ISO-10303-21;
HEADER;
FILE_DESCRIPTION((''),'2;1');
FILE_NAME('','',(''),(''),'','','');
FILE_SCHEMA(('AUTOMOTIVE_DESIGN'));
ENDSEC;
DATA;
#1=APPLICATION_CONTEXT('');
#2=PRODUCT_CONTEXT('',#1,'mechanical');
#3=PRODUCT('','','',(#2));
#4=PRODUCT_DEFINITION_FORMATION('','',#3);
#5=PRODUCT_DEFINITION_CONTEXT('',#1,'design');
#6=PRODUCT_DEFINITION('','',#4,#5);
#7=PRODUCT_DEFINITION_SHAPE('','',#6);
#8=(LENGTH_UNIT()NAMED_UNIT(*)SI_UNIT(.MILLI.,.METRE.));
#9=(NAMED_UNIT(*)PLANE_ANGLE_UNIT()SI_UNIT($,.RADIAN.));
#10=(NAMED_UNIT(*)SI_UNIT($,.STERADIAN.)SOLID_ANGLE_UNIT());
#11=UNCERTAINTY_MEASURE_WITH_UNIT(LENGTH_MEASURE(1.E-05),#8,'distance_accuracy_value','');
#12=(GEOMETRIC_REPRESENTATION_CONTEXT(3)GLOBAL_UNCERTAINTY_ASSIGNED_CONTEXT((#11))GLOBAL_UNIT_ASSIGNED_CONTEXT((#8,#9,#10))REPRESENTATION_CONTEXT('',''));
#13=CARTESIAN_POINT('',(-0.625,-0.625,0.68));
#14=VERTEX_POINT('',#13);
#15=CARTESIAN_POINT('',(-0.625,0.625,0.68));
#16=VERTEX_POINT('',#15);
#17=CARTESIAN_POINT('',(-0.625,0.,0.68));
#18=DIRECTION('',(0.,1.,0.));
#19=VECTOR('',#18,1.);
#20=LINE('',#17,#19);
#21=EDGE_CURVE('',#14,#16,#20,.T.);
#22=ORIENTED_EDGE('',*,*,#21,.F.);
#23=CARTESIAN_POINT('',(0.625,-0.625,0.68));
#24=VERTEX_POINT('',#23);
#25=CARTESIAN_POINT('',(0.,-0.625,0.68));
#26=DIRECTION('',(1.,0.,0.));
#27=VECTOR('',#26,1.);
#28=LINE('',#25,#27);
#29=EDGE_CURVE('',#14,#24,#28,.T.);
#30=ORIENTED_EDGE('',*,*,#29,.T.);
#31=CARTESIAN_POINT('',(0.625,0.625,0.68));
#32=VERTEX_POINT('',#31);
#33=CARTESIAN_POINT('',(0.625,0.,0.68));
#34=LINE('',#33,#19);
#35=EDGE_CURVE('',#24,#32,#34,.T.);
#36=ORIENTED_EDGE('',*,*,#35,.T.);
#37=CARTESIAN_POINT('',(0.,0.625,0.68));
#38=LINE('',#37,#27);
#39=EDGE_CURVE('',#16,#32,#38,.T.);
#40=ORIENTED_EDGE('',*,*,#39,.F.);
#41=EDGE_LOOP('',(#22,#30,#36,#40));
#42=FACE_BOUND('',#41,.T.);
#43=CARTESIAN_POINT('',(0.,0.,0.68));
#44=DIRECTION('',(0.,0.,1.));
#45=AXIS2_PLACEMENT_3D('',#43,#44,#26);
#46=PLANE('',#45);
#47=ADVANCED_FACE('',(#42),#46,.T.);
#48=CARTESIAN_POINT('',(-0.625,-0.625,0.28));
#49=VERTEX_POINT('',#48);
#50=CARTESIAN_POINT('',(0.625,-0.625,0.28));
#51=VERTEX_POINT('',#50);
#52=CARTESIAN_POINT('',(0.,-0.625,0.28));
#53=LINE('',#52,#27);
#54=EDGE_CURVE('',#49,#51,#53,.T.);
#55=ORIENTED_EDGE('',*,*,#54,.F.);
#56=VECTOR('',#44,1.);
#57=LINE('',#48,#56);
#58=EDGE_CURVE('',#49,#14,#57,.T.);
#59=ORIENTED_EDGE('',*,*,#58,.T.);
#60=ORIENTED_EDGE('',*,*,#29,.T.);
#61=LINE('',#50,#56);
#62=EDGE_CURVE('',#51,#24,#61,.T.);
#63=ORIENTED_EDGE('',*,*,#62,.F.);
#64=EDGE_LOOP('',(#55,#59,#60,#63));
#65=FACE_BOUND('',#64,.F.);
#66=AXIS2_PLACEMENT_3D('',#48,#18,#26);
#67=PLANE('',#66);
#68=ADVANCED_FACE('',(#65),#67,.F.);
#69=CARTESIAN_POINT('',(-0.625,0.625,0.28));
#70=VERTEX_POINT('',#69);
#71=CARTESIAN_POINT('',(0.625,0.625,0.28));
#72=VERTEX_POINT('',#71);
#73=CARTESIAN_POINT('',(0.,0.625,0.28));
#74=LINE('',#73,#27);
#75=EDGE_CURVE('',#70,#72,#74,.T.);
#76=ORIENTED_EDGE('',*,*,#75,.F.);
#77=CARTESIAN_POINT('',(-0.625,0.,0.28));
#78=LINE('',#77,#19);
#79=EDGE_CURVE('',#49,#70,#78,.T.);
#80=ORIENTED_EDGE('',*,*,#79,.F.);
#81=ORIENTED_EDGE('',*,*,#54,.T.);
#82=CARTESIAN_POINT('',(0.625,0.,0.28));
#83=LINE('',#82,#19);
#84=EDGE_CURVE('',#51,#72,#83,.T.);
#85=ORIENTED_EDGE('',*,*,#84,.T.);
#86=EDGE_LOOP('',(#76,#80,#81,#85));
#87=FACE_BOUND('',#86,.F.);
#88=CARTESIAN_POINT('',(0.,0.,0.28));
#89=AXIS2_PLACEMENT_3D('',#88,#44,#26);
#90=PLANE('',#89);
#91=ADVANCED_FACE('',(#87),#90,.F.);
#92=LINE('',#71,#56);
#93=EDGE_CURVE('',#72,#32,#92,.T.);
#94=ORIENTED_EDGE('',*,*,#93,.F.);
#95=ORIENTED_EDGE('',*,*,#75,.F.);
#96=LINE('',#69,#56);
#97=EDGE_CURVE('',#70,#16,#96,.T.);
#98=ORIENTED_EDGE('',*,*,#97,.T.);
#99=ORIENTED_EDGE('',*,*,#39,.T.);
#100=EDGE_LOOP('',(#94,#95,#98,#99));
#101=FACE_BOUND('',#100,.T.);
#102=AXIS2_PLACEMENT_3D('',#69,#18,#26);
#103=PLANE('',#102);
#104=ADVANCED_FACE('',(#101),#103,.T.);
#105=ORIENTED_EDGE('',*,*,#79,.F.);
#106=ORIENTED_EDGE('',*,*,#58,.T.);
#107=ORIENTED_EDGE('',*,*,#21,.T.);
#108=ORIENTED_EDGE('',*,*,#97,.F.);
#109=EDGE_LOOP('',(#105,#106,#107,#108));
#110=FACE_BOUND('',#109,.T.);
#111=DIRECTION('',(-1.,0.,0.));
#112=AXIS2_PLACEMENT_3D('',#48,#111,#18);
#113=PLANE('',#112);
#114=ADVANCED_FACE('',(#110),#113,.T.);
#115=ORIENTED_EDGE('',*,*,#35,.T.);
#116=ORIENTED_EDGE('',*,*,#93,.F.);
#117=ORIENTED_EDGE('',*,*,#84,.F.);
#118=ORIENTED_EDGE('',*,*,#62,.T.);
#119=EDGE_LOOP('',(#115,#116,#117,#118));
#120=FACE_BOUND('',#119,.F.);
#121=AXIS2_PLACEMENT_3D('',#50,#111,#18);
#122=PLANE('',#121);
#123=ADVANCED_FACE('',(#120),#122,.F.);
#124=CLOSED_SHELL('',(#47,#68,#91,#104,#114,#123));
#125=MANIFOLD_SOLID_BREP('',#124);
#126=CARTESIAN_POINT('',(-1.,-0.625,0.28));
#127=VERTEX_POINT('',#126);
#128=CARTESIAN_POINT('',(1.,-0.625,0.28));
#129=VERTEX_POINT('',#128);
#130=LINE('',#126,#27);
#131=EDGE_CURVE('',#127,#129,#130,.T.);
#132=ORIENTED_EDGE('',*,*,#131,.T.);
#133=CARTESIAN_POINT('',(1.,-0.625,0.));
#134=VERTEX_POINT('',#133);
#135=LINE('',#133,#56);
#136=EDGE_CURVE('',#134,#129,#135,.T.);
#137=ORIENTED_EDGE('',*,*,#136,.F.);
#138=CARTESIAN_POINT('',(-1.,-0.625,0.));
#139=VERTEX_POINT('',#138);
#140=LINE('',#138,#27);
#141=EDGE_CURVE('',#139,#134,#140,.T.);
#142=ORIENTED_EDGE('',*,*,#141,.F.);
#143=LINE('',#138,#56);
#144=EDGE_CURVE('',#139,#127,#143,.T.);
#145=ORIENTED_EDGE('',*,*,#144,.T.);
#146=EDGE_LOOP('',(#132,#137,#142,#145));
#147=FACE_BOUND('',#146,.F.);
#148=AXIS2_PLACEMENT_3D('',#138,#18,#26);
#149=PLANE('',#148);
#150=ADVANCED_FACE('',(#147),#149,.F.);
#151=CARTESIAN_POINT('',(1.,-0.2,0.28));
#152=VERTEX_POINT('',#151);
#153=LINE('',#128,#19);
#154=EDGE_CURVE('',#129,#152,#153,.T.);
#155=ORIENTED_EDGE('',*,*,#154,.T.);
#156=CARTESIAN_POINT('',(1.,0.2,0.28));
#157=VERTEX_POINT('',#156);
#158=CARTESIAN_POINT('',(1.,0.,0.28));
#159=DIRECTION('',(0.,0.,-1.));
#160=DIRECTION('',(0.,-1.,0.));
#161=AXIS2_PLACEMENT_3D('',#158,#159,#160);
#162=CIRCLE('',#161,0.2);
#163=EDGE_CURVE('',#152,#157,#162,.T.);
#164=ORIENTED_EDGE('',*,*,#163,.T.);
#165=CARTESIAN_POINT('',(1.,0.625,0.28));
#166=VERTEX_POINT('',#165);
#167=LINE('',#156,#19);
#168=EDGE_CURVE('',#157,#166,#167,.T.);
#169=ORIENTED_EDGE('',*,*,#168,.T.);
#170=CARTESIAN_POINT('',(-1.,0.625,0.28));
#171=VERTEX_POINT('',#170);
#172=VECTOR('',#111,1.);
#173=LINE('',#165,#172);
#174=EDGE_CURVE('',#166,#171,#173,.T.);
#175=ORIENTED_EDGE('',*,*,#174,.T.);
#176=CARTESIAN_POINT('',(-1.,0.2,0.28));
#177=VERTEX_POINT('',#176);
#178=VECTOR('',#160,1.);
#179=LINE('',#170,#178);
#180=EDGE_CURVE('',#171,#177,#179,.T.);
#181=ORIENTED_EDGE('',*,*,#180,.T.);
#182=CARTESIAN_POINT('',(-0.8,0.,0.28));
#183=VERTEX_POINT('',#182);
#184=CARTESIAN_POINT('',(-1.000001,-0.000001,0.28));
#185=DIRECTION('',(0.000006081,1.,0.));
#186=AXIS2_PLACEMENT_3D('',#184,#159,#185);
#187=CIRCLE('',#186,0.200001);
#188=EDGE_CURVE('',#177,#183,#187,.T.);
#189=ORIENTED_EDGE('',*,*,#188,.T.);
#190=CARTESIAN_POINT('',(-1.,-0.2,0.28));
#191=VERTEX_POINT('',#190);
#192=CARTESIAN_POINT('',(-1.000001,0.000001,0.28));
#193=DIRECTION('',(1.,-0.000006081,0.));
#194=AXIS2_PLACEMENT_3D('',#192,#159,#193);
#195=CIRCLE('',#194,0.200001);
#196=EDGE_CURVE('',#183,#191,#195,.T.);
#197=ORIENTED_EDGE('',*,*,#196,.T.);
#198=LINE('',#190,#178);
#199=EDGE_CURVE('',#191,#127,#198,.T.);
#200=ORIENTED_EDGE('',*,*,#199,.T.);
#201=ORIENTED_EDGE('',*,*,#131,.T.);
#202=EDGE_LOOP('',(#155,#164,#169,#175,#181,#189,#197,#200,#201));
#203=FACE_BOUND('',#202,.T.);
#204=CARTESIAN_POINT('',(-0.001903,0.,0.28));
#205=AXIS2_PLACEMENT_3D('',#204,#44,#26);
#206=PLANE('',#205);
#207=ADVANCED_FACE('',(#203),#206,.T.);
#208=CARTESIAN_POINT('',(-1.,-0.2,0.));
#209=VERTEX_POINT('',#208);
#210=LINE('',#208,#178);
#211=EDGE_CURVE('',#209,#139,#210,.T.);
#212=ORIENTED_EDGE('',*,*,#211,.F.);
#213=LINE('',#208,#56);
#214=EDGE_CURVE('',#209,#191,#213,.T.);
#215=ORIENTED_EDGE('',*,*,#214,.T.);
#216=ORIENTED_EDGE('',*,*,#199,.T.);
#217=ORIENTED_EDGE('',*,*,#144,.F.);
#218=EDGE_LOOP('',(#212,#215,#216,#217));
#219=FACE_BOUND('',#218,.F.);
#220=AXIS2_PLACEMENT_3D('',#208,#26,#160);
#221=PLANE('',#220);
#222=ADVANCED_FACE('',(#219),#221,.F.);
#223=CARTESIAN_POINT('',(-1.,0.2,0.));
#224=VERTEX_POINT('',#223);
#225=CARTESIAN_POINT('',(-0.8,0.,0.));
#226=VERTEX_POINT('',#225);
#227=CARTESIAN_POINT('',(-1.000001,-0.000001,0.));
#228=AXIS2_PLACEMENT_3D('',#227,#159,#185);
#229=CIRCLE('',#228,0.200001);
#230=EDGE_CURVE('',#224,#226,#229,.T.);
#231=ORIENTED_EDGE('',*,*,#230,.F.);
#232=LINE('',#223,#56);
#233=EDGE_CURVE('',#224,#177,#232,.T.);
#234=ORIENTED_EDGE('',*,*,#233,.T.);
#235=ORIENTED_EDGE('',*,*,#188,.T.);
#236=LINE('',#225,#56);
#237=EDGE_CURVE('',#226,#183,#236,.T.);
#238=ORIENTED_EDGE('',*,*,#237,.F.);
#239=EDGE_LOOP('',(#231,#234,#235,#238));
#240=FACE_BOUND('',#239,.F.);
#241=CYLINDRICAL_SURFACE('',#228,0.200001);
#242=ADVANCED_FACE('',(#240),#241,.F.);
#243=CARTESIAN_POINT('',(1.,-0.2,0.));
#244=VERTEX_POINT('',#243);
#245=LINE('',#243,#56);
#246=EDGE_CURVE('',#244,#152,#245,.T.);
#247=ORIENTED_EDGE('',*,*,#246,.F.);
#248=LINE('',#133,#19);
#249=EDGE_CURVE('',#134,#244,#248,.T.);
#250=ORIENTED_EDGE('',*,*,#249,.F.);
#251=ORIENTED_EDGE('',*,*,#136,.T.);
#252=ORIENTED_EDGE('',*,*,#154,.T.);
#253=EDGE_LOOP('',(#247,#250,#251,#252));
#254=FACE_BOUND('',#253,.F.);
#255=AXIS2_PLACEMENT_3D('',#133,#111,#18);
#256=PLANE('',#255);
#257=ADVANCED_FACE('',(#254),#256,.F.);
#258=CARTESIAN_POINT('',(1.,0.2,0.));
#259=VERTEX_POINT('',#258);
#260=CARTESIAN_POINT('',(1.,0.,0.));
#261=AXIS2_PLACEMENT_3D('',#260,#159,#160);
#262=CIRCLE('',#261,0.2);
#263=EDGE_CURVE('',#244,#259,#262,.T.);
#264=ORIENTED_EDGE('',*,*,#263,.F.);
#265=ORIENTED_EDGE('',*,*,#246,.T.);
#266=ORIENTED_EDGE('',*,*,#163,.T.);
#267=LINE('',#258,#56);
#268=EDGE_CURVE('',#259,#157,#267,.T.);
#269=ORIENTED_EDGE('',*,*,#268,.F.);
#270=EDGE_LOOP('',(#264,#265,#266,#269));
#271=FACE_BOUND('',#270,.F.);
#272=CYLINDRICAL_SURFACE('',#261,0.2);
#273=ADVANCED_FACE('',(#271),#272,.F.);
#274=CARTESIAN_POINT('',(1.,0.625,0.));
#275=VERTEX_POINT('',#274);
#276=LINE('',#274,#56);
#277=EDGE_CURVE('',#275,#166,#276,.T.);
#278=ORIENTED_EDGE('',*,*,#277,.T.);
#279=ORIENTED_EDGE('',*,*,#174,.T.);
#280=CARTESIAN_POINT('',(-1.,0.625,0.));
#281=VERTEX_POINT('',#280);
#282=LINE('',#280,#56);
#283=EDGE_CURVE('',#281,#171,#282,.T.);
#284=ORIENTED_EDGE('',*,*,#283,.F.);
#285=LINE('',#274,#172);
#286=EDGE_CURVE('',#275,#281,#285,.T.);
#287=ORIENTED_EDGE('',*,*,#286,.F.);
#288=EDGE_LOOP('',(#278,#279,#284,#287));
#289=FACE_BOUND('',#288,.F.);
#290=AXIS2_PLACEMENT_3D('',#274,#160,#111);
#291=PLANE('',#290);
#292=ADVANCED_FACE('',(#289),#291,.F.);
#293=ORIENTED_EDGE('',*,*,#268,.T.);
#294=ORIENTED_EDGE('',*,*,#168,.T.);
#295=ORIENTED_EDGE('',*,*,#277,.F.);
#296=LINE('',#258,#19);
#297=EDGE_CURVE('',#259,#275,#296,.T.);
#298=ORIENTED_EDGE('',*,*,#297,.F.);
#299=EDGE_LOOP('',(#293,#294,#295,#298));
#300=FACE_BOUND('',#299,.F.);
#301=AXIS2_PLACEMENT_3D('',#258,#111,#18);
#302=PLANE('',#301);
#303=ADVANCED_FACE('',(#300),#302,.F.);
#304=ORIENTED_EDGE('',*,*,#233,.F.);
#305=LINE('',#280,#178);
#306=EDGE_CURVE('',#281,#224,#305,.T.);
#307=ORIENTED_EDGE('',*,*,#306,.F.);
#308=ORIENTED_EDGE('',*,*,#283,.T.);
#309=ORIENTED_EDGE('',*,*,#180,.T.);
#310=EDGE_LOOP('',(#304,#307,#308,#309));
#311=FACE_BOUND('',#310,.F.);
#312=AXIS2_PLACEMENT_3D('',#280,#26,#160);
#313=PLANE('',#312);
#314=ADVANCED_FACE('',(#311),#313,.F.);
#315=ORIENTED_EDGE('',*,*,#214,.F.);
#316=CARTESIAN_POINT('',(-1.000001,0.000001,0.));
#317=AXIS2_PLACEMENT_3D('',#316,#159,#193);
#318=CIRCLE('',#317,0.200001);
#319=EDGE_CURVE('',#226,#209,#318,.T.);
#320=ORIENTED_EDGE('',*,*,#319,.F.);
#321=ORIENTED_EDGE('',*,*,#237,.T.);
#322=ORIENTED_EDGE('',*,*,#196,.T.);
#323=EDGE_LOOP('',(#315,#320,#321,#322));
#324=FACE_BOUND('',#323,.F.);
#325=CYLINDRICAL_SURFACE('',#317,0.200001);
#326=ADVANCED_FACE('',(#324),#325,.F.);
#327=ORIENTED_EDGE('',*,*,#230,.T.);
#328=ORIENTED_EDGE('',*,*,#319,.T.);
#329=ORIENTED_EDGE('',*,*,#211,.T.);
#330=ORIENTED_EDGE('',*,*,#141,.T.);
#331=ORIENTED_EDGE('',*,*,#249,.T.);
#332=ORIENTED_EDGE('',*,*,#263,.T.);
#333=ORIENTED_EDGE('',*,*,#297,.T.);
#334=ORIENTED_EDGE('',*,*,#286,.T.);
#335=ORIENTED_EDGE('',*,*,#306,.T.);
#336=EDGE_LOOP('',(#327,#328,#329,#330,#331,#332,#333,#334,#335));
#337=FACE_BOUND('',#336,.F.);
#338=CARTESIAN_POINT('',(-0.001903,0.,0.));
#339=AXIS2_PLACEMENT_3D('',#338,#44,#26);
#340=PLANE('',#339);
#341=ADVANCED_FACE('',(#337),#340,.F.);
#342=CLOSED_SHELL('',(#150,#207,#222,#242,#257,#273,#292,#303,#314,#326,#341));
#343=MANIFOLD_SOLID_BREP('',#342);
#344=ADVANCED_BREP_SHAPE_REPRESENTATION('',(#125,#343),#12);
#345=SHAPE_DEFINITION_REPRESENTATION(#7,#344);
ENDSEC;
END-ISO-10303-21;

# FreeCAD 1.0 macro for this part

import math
import FreeCAD as App
import Part
import Sketcher

V = App.Vector
Q = App.Units.Quantity


def add_polygon(sketch, points):
    """Adds a closed chain of lines whose ends are joined by coincident constraints."""
    first, n = sketch.GeometryCount, len(points)
    for a, b in zip(points, points[1:] + points[:1]):
        sketch.addGeometry(Part.LineSegment(App.Vector(*a, 0), App.Vector(*b, 0)), False)
    for i in range(n):
        sketch.addConstraint(Sketcher.Constraint("Coincident", first + i, 2, first + (i + 1) % n, 1))

doc = App.newDocument("Part")
params = doc.addObject("Spreadsheet::Sheet", "Params")
for row, (alias, value) in enumerate([
    ("sketch1_radius", "0.200001 mm"),
    ("sketch1_width", "2 mm"),
    ("pad1_length", "0.28 mm"),
    ("sketch2_width", "1.25 mm"),
    ("pad2_length", "0.4 mm"),
], start=1):
    params.set(f"A{row}", alias)
    params.set(f"B{row}", "=" + value)
    params.setAlias(f"B{row}", alias)

body = doc.addObject("PartDesign::Body", "Body")

# Sketch on XY plane
sketch1 = body.newObject("Sketcher::SketchObject", "Sketch")
sketch1.AttachmentSupport = (doc.getObject("XY_Plane"), [""])
sketch1.MapMode = "FlatFace"
sketch1.addGeometry([
    Part.LineSegment(V(1, 0.625, 0), V(-1, 0.625, 0)),  # 0
    Part.LineSegment(V(-1, 0.625, 0), V(-1, 0.2, 0)),  # 1
    Part.ArcOfCircle(Part.Circle(V(-1.000001, -0.000001, 0), V(0, 0, 1), 0.200001), math.radians(0.000348), math.radians(89.999652)),  # 2
    Part.ArcOfCircle(Part.Circle(V(-1.000001, 0.000001, 0), V(0, 0, 1), 0.200001), math.radians(-89.999652), math.radians(-0.000348)),  # 3
    Part.LineSegment(V(-1, -0.2, 0), V(-1, -0.625, 0)),  # 4
    Part.LineSegment(V(-1, -0.625, 0), V(1, -0.625, 0)),  # 5
    Part.LineSegment(V(1, -0.625, 0), V(1, -0.2, 0)),  # 6
    Part.ArcOfCircle(Part.Circle(V(1, 0, 0), V(0, 0, 1), 0.2), math.radians(90), math.radians(270)),  # 7
    Part.LineSegment(V(1, 0.2, 0), V(1, 0.625, 0)),  # 8
], False)
sketch1.addConstraint([
    Sketcher.Constraint("Coincident", 0, 2, 1, 1),
    Sketcher.Constraint("Coincident", 1, 2, 2, 2),
    Sketcher.Constraint("Coincident", 2, 1, 3, 2),
    Sketcher.Constraint("Coincident", 3, 1, 4, 1),
    Sketcher.Constraint("Coincident", 4, 2, 5, 1),
    Sketcher.Constraint("Coincident", 5, 2, 6, 1),
    Sketcher.Constraint("Coincident", 6, 2, 7, 2),
    Sketcher.Constraint("Coincident", 7, 1, 8, 1),
    Sketcher.Constraint("Coincident", 8, 2, 0, 1),
    Sketcher.Constraint("Horizontal", 0),
    Sketcher.Constraint("Vertical", 1),
    Sketcher.Constraint("Vertical", 4),
    Sketcher.Constraint("Horizontal", 5),
    Sketcher.Constraint("Vertical", 6),
    Sketcher.Constraint("Vertical", 8),
    Sketcher.Constraint("Coincident", 3, 3, 2, 3),
    Sketcher.Constraint("Equal", 3, 7),
    Sketcher.Constraint("Symmetric", 2, 3, 7, 3, -1, 1),
    Sketcher.Constraint("Symmetric", 0, 2, 5, 2, -1, 1),
    Sketcher.Constraint("Symmetric", 3, 1, 6, 2, -2),
    Sketcher.Constraint("PointOnObject", 2, 1, -1),
    Sketcher.Constraint("Vertical", 3, 3, 0, 2),
    Sketcher.Constraint("Vertical", 6, 2, 7, 1),
    Sketcher.Constraint("Radius", 2, Q("0.200001 mm")),
    Sketcher.Constraint("DistanceX", 0, 2, 0, 1, Q("2 mm")),
    Sketcher.Constraint("DistanceY", 1, 2, 1, 1, Q("0.425 mm")),
])
sketch1.setExpression("Constraints[23]", "Params.sketch1_radius")
sketch1.setExpression("Constraints[24]", "Params.sketch1_width")
pad1 = body.newObject("PartDesign::Pad", "Pad")
pad1.Profile = sketch1
pad1.setExpression("Length", "Params.pad1_length")
body2 = doc.addObject("PartDesign::Body", "Body001")

# Sketch on XY plane
sketch2 = body2.newObject("Sketcher::SketchObject", "Sketch001")
sketch2.AttachmentSupport = (doc.getObject("XY_Plane001"), [""])
sketch2.MapMode = "FlatFace"
sketch2.AttachmentOffset = App.Placement(V(0, 0, 0.28), App.Rotation())
add_polygon(sketch2, [(-0.625, 0.625), (-0.625, -0.625), (0.625, -0.625), (0.625, 0.625)])  # lines 0-3
sketch2.addConstraint([
    Sketcher.Constraint("Vertical", 0),
    Sketcher.Constraint("Horizontal", 1),
    Sketcher.Constraint("Vertical", 2),
    Sketcher.Constraint("Horizontal", 3),
    Sketcher.Constraint("Symmetric", 0, 2, 2, 2, -1, 1),
    Sketcher.Constraint("Equal", 3, 0),
    Sketcher.Constraint("DistanceX", 1, 1, 1, 2, Q("1.25 mm")),
])
sketch2.setExpression("Constraints[10]", "Params.sketch2_width")
pad2 = body2.newObject("PartDesign::Pad", "Pad001")
pad2.Profile = sketch2
pad2.setExpression("Length", "Params.pad2_length")

doc.recompute()
